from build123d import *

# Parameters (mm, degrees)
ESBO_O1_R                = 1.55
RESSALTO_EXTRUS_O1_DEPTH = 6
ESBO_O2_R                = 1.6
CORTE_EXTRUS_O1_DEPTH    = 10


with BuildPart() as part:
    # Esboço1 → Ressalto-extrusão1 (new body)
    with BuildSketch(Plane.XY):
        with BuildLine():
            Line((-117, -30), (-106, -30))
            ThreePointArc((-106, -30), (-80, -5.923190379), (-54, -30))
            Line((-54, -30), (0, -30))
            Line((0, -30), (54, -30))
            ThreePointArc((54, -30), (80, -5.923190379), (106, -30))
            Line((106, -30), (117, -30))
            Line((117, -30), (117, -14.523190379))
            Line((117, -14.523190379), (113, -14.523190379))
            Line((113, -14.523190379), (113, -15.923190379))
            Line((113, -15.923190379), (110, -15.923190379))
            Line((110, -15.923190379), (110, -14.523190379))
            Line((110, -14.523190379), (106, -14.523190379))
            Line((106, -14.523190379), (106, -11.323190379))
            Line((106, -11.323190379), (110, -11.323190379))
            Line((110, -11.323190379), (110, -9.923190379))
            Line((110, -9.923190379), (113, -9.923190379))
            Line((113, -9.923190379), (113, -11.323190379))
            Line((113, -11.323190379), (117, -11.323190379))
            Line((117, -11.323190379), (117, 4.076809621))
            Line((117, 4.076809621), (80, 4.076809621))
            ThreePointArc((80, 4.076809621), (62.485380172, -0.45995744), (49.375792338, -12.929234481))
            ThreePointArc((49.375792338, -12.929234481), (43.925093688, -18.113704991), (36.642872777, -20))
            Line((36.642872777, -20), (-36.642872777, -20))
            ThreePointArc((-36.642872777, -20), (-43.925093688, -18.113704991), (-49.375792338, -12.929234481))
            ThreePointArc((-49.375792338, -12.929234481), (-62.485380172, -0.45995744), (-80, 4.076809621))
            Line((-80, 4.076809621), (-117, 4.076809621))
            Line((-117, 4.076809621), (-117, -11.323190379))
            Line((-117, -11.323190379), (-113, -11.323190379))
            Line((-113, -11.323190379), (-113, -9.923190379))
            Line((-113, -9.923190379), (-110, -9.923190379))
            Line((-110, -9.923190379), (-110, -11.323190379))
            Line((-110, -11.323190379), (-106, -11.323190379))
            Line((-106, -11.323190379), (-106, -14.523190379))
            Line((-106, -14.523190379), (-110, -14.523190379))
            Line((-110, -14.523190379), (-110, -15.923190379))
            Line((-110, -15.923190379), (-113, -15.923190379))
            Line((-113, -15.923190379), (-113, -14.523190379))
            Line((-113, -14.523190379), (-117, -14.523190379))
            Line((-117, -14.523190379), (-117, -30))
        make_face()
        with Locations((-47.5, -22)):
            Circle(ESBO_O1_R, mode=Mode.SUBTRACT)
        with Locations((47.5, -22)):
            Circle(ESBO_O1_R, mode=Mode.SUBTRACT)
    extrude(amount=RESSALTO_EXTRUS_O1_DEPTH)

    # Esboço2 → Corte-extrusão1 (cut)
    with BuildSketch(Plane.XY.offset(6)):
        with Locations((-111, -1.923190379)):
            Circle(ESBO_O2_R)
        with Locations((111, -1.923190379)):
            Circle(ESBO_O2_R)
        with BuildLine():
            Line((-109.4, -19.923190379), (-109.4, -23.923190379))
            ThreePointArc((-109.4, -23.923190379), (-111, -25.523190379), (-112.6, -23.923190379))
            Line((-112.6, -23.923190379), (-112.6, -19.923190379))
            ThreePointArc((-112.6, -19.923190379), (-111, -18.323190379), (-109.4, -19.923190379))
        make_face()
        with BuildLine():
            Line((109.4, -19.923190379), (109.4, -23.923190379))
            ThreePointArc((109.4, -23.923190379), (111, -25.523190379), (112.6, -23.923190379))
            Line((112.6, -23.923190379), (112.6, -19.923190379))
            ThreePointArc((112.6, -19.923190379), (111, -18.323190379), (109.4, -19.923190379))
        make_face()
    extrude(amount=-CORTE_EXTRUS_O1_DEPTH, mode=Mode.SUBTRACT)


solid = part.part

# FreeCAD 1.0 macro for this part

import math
import FreeCAD as App
import Part
import Sketcher
Q = App.Units.Quantity

doc = App.newDocument("Part")
params = doc.addObject("Spreadsheet::Sheet", "Params")
for row, (alias, value) in enumerate([
    ("sketch1_radius", "15 mm"),
    ("sketch1_diameter", "3.1 mm"),
    ("sketch1_width", "11 mm"),
    ("sketch1_width2", "108 mm"),
    ("sketch1_width3", "4 mm"),
    ("pad1_length", "6 mm"),
    ("sketch2_diameter", "3.2 mm"),
    ("sketch2_height", "4 mm"),
    ("pocket1_length", "10 mm"),
], start=1):
    params.set(f"A{row}", alias)
    params.set(f"B{row}", "=" + value)
    params.setAlias(f"B{row}", alias)

body = doc.addObject("PartDesign::Body", "Body")

# Sketch on XY plane
sketch1 = body.newObject("Sketcher::SketchObject", "Sketch")
sketch1.AttachmentSupport = (doc.getObject("XY_Plane"), [""])
sketch1.MapMode = "FlatFace"
sketch1.addGeometry(Part.LineSegment(App.Vector(-117, -30, 0), App.Vector(-106, -30, 0)), False)
sketch1.addGeometry(Part.ArcOfCircle(Part.Circle(App.Vector(-80, -32, 0), App.Vector(0, 0, 1), 26.1), math.radians(4), math.radians(176)), False)
sketch1.addGeometry(Part.LineSegment(App.Vector(-54, -30, 0), App.Vector(54, -30, 0)), False)
sketch1.addGeometry(Part.ArcOfCircle(Part.Circle(App.Vector(80, -32, 0), App.Vector(0, 0, 1), 26.1), math.radians(4), math.radians(176)), False)
sketch1.addGeometry(Part.LineSegment(App.Vector(106, -30, 0), App.Vector(117, -30, 0)), False)
sketch1.addGeometry(Part.LineSegment(App.Vector(117, -30, 0), App.Vector(117, -14.5, 0)), False)
sketch1.addGeometry(Part.LineSegment(App.Vector(117, -14.5, 0), App.Vector(113, -14.5, 0)), False)
sketch1.addGeometry(Part.LineSegment(App.Vector(113, -14.5, 0), App.Vector(113, -15.9, 0)), False)
sketch1.addGeometry(Part.LineSegment(App.Vector(113, -15.9, 0), App.Vector(110, -15.9, 0)), False)
sketch1.addGeometry(Part.LineSegment(App.Vector(110, -15.9, 0), App.Vector(110, -14.5, 0)), False)
sketch1.addGeometry(Part.LineSegment(App.Vector(110, -14.5, 0), App.Vector(106, -14.5, 0)), False)
sketch1.addGeometry(Part.LineSegment(App.Vector(106, -14.5, 0), App.Vector(106, -11.3, 0)), False)
sketch1.addGeometry(Part.LineSegment(App.Vector(106, -11.3, 0), App.Vector(110, -11.3, 0)), False)
sketch1.addGeometry(Part.LineSegment(App.Vector(110, -11.3, 0), App.Vector(110, -9.9, 0)), False)
sketch1.addGeometry(Part.LineSegment(App.Vector(110, -9.9, 0), App.Vector(113, -9.9, 0)), False)
sketch1.addGeometry(Part.LineSegment(App.Vector(113, -9.9, 0), App.Vector(113, -11.3, 0)), False)
sketch1.addGeometry(Part.LineSegment(App.Vector(113, -11.3, 0), App.Vector(117, -11.3, 0)), False)
sketch1.addGeometry(Part.LineSegment(App.Vector(117, -11.3, 0), App.Vector(117, 4.1, 0)), False)
sketch1.addGeometry(Part.LineSegment(App.Vector(117, 4.1, 0), App.Vector(80, 4.1, 0)), False)
sketch1.addGeometry(Part.ArcOfCircle(Part.Circle(App.Vector(80, -32, 0), App.Vector(0, 0, 1), 36.1), math.radians(90), math.radians(148)), False)
sketch1.addGeometry(Part.ArcOfCircle(Part.Circle(App.Vector(36.6, -5, 0), App.Vector(0, 0, 1), 15), math.radians(-90), math.radians(-32)), False)
sketch1.addGeometry(Part.LineSegment(App.Vector(36.6, -20, 0), App.Vector(-36.6, -20, 0)), False)
sketch1.addGeometry(Part.ArcOfCircle(Part.Circle(App.Vector(-36.6, -5, 0), App.Vector(0, 0, 1), 15), math.radians(-148), math.radians(-90)), False)
sketch1.addGeometry(Part.ArcOfCircle(Part.Circle(App.Vector(-80, -32, 0), App.Vector(0, 0, 1), 36.1), math.radians(32), math.radians(90)), False)
sketch1.addGeometry(Part.LineSegment(App.Vector(-80, 4.1, 0), App.Vector(-117, 4.1, 0)), False)
sketch1.addGeometry(Part.LineSegment(App.Vector(-117, 4.1, 0), App.Vector(-117, -11.3, 0)), False)
sketch1.addGeometry(Part.LineSegment(App.Vector(-117, -11.3, 0), App.Vector(-113, -11.3, 0)), False)
sketch1.addGeometry(Part.LineSegment(App.Vector(-113, -11.3, 0), App.Vector(-113, -9.9, 0)), False)
sketch1.addGeometry(Part.LineSegment(App.Vector(-113, -9.9, 0), App.Vector(-110, -9.9, 0)), False)
sketch1.addGeometry(Part.LineSegment(App.Vector(-110, -9.9, 0), App.Vector(-110, -11.3, 0)), False)
sketch1.addGeometry(Part.LineSegment(App.Vector(-110, -11.3, 0), App.Vector(-106, -11.3, 0)), False)
sketch1.addGeometry(Part.LineSegment(App.Vector(-106, -11.3, 0), App.Vector(-106, -14.5, 0)), False)
sketch1.addGeometry(Part.LineSegment(App.Vector(-106, -14.5, 0), App.Vector(-110, -14.5, 0)), False)
sketch1.addGeometry(Part.LineSegment(App.Vector(-110, -14.5, 0), App.Vector(-110, -15.9, 0)), False)
sketch1.addGeometry(Part.LineSegment(App.Vector(-110, -15.9, 0), App.Vector(-113, -15.9, 0)), False)
sketch1.addGeometry(Part.LineSegment(App.Vector(-113, -15.9, 0), App.Vector(-113, -14.5, 0)), False)
sketch1.addGeometry(Part.LineSegment(App.Vector(-113, -14.5, 0), App.Vector(-117, -14.5, 0)), False)
sketch1.addGeometry(Part.LineSegment(App.Vector(-117, -14.5, 0), App.Vector(-117, -30, 0)), False)
sketch1.addGeometry(Part.Circle(App.Vector(-47.5, -22, 0), App.Vector(0, 0, 1), 1.6), False)
sketch1.addGeometry(Part.Circle(App.Vector(47.5, -22, 0), App.Vector(0, 0, 1), 1.6), False)
sketch1.addConstraint(Sketcher.Constraint("Coincident", 0, 2, 1, 2))
sketch1.addConstraint(Sketcher.Constraint("Coincident", 1, 1, 2, 1))
sketch1.addConstraint(Sketcher.Constraint("Coincident", 2, 2, 3, 2))
sketch1.addConstraint(Sketcher.Constraint("Coincident", 3, 1, 4, 1))
sketch1.addConstraint(Sketcher.Constraint("Coincident", 4, 2, 5, 1))
sketch1.addConstraint(Sketcher.Constraint("Coincident", 5, 2, 6, 1))
sketch1.addConstraint(Sketcher.Constraint("Coincident", 6, 2, 7, 1))
sketch1.addConstraint(Sketcher.Constraint("Coincident", 7, 2, 8, 1))
sketch1.addConstraint(Sketcher.Constraint("Coincident", 8, 2, 9, 1))
sketch1.addConstraint(Sketcher.Constraint("Coincident", 9, 2, 10, 1))
sketch1.addConstraint(Sketcher.Constraint("Coincident", 10, 2, 11, 1))
sketch1.addConstraint(Sketcher.Constraint("Coincident", 11, 2, 12, 1))
sketch1.addConstraint(Sketcher.Constraint("Coincident", 12, 2, 13, 1))
sketch1.addConstraint(Sketcher.Constraint("Coincident", 13, 2, 14, 1))
sketch1.addConstraint(Sketcher.Constraint("Coincident", 14, 2, 15, 1))
sketch1.addConstraint(Sketcher.Constraint("Coincident", 15, 2, 16, 1))
sketch1.addConstraint(Sketcher.Constraint("Coincident", 16, 2, 17, 1))
sketch1.addConstraint(Sketcher.Constraint("Coincident", 17, 2, 18, 1))
sketch1.addConstraint(Sketcher.Constraint("Tangent", 18, 2, 19, 1))
sketch1.addConstraint(Sketcher.Constraint("Tangent", 19, 2, 20, 2))
sketch1.addConstraint(Sketcher.Constraint("Tangent", 20, 1, 21, 1))
sketch1.addConstraint(Sketcher.Constraint("Tangent", 21, 2, 22, 2))
sketch1.addConstraint(Sketcher.Constraint("Tangent", 22, 1, 23, 1))
sketch1.addConstraint(Sketcher.Constraint("Tangent", 23, 2, 24, 1))
sketch1.addConstraint(Sketcher.Constraint("Coincident", 24, 2, 25, 1))
sketch1.addConstraint(Sketcher.Constraint("Coincident", 25, 2, 26, 1))
sketch1.addConstraint(Sketcher.Constraint("Coincident", 26, 2, 27, 1))
sketch1.addConstraint(Sketcher.Constraint("Coincident", 27, 2, 28, 1))
sketch1.addConstraint(Sketcher.Constraint("Coincident", 28, 2, 29, 1))
sketch1.addConstraint(Sketcher.Constraint("Coincident", 29, 2, 30, 1))
sketch1.addConstraint(Sketcher.Constraint("Coincident", 30, 2, 31, 1))
sketch1.addConstraint(Sketcher.Constraint("Coincident", 31, 2, 32, 1))
sketch1.addConstraint(Sketcher.Constraint("Coincident", 32, 2, 33, 1))
sketch1.addConstraint(Sketcher.Constraint("Coincident", 33, 2, 34, 1))
sketch1.addConstraint(Sketcher.Constraint("Coincident", 34, 2, 35, 1))
sketch1.addConstraint(Sketcher.Constraint("Coincident", 35, 2, 36, 1))
sketch1.addConstraint(Sketcher.Constraint("Coincident", 36, 2, 37, 1))
sketch1.addConstraint(Sketcher.Constraint("Coincident", 37, 2, 0, 1))
sketch1.addConstraint(Sketcher.Constraint("Horizontal", 0))
sketch1.addConstraint(Sketcher.Constraint("Horizontal", 2))
sketch1.addConstraint(Sketcher.Constraint("Horizontal", 4))
sketch1.addConstraint(Sketcher.Constraint("Vertical", 5))
sketch1.addConstraint(Sketcher.Constraint("Horizontal", 6))
sketch1.addConstraint(Sketcher.Constraint("Vertical", 7))
sketch1.addConstraint(Sketcher.Constraint("Horizontal", 8))
sketch1.addConstraint(Sketcher.Constraint("Vertical", 9))
sketch1.addConstraint(Sketcher.Constraint("Horizontal", 10))
sketch1.addConstraint(Sketcher.Constraint("Vertical", 11))
sketch1.addConstraint(Sketcher.Constraint("Horizontal", 12))
sketch1.addConstraint(Sketcher.Constraint("Vertical", 13))
sketch1.addConstraint(Sketcher.Constraint("Horizontal", 14))
sketch1.addConstraint(Sketcher.Constraint("Vertical", 15))
sketch1.addConstraint(Sketcher.Constraint("Horizontal", 16))
sketch1.addConstraint(Sketcher.Constraint("Vertical", 17))
sketch1.addConstraint(Sketcher.Constraint("Horizontal", 18))
sketch1.addConstraint(Sketcher.Constraint("Horizontal", 21))
sketch1.addConstraint(Sketcher.Constraint("Horizontal", 24))
sketch1.addConstraint(Sketcher.Constraint("Vertical", 25))
sketch1.addConstraint(Sketcher.Constraint("Horizontal", 26))
sketch1.addConstraint(Sketcher.Constraint("Vertical", 27))
sketch1.addConstraint(Sketcher.Constraint("Horizontal", 28))
sketch1.addConstraint(Sketcher.Constraint("Vertical", 29))
sketch1.addConstraint(Sketcher.Constraint("Horizontal", 30))
sketch1.addConstraint(Sketcher.Constraint("Vertical", 31))
sketch1.addConstraint(Sketcher.Constraint("Horizontal", 32))
sketch1.addConstraint(Sketcher.Constraint("Vertical", 33))
sketch1.addConstraint(Sketcher.Constraint("Horizontal", 34))
sketch1.addConstraint(Sketcher.Constraint("Vertical", 35))
sketch1.addConstraint(Sketcher.Constraint("Horizontal", 36))
sketch1.addConstraint(Sketcher.Constraint("Vertical", 37))
sketch1.addConstraint(Sketcher.Constraint("Coincident", 19, 3, 3, 3))
sketch1.addConstraint(Sketcher.Constraint("Coincident", 23, 3, 1, 3))
sketch1.addConstraint(Sketcher.Constraint("Equal", 1, 3))
sketch1.addConstraint(Sketcher.Constraint("Equal", 20, 22))
sketch1.addConstraint(Sketcher.Constraint("Equal", 19, 23))
sketch1.addConstraint(Sketcher.Constraint("Equal", 38, 39))
sketch1.addConstraint(Sketcher.Constraint("Symmetric", 1, 3, 3, 3, -2))
sketch1.addConstraint(Sketcher.Constraint("Symmetric", 38, 3, 39, 3, -2))
sketch1.addConstraint(Sketcher.Constraint("Symmetric", 16, 2, 25, 2, -2))
sketch1.addConstraint(Sketcher.Constraint("Symmetric", 14, 2, 27, 2, -2))
sketch1.addConstraint(Sketcher.Constraint("Symmetric", 12, 2, 29, 2, -2))
sketch1.addConstraint(Sketcher.Constraint("Symmetric", 10, 2, 31, 2, -2))
sketch1.addConstraint(Sketcher.Constraint("Symmetric", 8, 2, 33, 2, -2))
sketch1.addConstraint(Sketcher.Constraint("Symmetric", 6, 2, 35, 2, -2))
sketch1.addConstraint(Sketcher.Constraint("Symmetric", 4, 2, 37, 2, -2))
sketch1.addConstraint(Sketcher.Constraint("Horizontal", 0, 2, 1, 1))
sketch1.addConstraint(Sketcher.Constraint("Horizontal", 6, 2, 9, 2))
sketch1.addConstraint(Sketcher.Constraint("Horizontal", 12, 2, 15, 2))
sketch1.addConstraint(Sketcher.Constraint("Vertical", 3, 1, 10, 2))
sketch1.addConstraint(Sketcher.Constraint("Vertical", 9, 2, 12, 2))
sketch1.addConstraint(Sketcher.Constraint("Vertical", 7, 2, 14, 2))
sketch1.addConstraint(Sketcher.Constraint("Vertical", 5, 2, 16, 2))
sketch1.addConstraint(Sketcher.Constraint("Equal", 6, 10))
sketch1.addConstraint(Sketcher.Constraint("Equal", 9, 13))
sketch1.addConstraint(Sketcher.Constraint("Radius", 20, Q("15 mm")))
sketch1.addConstraint(Sketcher.Constraint("Diameter", 38, Q("3.1 mm")))
sketch1.addConstraint(Sketcher.Constraint("DistanceX", 0, 1, 0, 2, Q("11 mm")))
sketch1.addConstraint(Sketcher.Constraint("DistanceX", 2, 1, 2, 2, Q("108 mm")))
sketch1.addConstraint(Sketcher.Constraint("DistanceX", 6, 2, 6, 1, Q("4 mm")))
sketch1.addConstraint(Sketcher.Constraint("DistanceX", 18, 2, 18, 1, Q("37 mm")))
sketch1.addConstraint(Sketcher.Constraint("DistanceY", 7, 2, 7, 1, Q("1.4 mm")))
sketch1.addConstraint(Sketcher.Constraint("DistanceY", 11, 1, 11, 2, Q("3.2 mm")))
sketch1.addConstraint(Sketcher.Constraint("DistanceY", 17, 1, 17, 2, Q("15.4 mm")))
sketch1.addConstraint(Sketcher.Constraint("DistanceY", 1, 3, -1, 1, Q("32 mm")))
sketch1.addConstraint(Sketcher.Constraint("DistanceY", 20, 3, -1, 1, Q("5 mm")))
sketch1.addConstraint(Sketcher.Constraint("DistanceY", 38, 3, -1, 1, Q("22 mm")))
sketch1.addConstraint(Sketcher.Constraint("DistanceY", 0, 2, -1, 1, Q("30 mm")))
sketch1.addConstraint(Sketcher.Constraint("DistanceX", 38, 3, 39, 3, Q("95 mm")))
sketch1.addConstraint(Sketcher.Constraint("Radius", 19, Q("36.07681 mm")))
sketch1.setExpression("Constraints[94]", "Params.sketch1_radius")
sketch1.setExpression("Constraints[95]", "Params.sketch1_diameter")
sketch1.setExpression("Constraints[96]", "Params.sketch1_width")
sketch1.setExpression("Constraints[97]", "Params.sketch1_width2")
sketch1.setExpression("Constraints[98]", "Params.sketch1_width3")
pad1 = body.newObject("PartDesign::Pad", "Pad")
pad1.Profile = sketch1
pad1.setExpression("Length", "Params.pad1_length")

# Sketch on XY plane
sketch2 = body.newObject("Sketcher::SketchObject", "Sketch001")
sketch2.AttachmentSupport = (doc.getObject("XY_Plane"), [""])
sketch2.MapMode = "FlatFace"
sketch2.AttachmentOffset = App.Placement(App.Vector(0, 0, 6), App.Rotation())
sketch2.addGeometry(Part.Circle(App.Vector(-111, -1.9, 0), App.Vector(0, 0, 1), 1.6), False)
sketch2.addGeometry(Part.Circle(App.Vector(111, -1.9, 0), App.Vector(0, 0, 1), 1.6), False)
sketch2.addGeometry(Part.LineSegment(App.Vector(-109.4, -23.9, 0), App.Vector(-109.4, -19.9, 0)), False)
sketch2.addGeometry(Part.ArcOfCircle(Part.Circle(App.Vector(-111, -19.9, 0), App.Vector(0, 0, 1), 1.6), math.radians(0), math.radians(180)), False)
sketch2.addGeometry(Part.LineSegment(App.Vector(-112.6, -19.9, 0), App.Vector(-112.6, -23.9, 0)), False)
sketch2.addGeometry(Part.ArcOfCircle(Part.Circle(App.Vector(-111, -23.9, 0), App.Vector(0, 0, 1), 1.6), math.radians(180), math.radians(360)), False)
sketch2.addGeometry(Part.LineSegment(App.Vector(109.4, -19.9, 0), App.Vector(109.4, -23.9, 0)), False)
sketch2.addGeometry(Part.ArcOfCircle(Part.Circle(App.Vector(111, -23.9, 0), App.Vector(0, 0, 1), 1.6), math.radians(180), math.radians(360)), False)
sketch2.addGeometry(Part.LineSegment(App.Vector(112.6, -23.9, 0), App.Vector(112.6, -19.9, 0)), False)
sketch2.addGeometry(Part.ArcOfCircle(Part.Circle(App.Vector(111, -19.9, 0), App.Vector(0, 0, 1), 1.6), math.radians(0), math.radians(180)), False)
sketch2.addConstraint(Sketcher.Constraint("Tangent", 2, 2, 3, 1))
sketch2.addConstraint(Sketcher.Constraint("Tangent", 3, 2, 4, 1))
sketch2.addConstraint(Sketcher.Constraint("Tangent", 4, 2, 5, 1))
sketch2.addConstraint(Sketcher.Constraint("Tangent", 5, 2, 2, 1))
sketch2.addConstraint(Sketcher.Constraint("Tangent", 6, 2, 7, 1))
sketch2.addConstraint(Sketcher.Constraint("Tangent", 7, 2, 8, 1))
sketch2.addConstraint(Sketcher.Constraint("Tangent", 8, 2, 9, 1))
sketch2.addConstraint(Sketcher.Constraint("Tangent", 9, 2, 6, 1))
sketch2.addConstraint(Sketcher.Constraint("Vertical", 2))
sketch2.addConstraint(Sketcher.Constraint("Vertical", 4))
sketch2.addConstraint(Sketcher.Constraint("Vertical", 6))
sketch2.addConstraint(Sketcher.Constraint("Vertical", 8))
sketch2.addConstraint(Sketcher.Constraint("Equal", 0, 1))
sketch2.addConstraint(Sketcher.Constraint("Equal", 1, 3))
sketch2.addConstraint(Sketcher.Constraint("Equal", 5, 7))
sketch2.addConstraint(Sketcher.Constraint("Symmetric", 0, 3, 1, 3, -2))
sketch2.addConstraint(Sketcher.Constraint("Symmetric", 5, 3, 7, 3, -2))
sketch2.addConstraint(Sketcher.Constraint("Horizontal", 3, 3, 9, 3))
sketch2.addConstraint(Sketcher.Constraint("Vertical", 0, 3, 3, 3))
sketch2.addConstraint(Sketcher.Constraint("Diameter", 0, Q("3.2 mm")))
sketch2.addConstraint(Sketcher.Constraint("DistanceY", 2, 1, 2, 2, Q("4 mm")))
sketch2.addConstraint(Sketcher.Constraint("DistanceX", 0, 3, -1, 1, Q("111 mm")))
sketch2.addConstraint(Sketcher.Constraint("DistanceY", 3, 3, 0, 3, Q("18 mm")))
sketch2.addConstraint(Sketcher.Constraint("DistanceY", 0, 3, -1, 1, Q("1.92319 mm")))
sketch2.setExpression("Constraints[19]", "Params.sketch2_diameter")
sketch2.setExpression("Constraints[20]", "Params.sketch2_height")
pocket1 = body.newObject("PartDesign::Pocket", "Pocket")
pocket1.Profile = sketch2
pocket1.setExpression("Length", "Params.pocket1_length")

doc.recompute()
